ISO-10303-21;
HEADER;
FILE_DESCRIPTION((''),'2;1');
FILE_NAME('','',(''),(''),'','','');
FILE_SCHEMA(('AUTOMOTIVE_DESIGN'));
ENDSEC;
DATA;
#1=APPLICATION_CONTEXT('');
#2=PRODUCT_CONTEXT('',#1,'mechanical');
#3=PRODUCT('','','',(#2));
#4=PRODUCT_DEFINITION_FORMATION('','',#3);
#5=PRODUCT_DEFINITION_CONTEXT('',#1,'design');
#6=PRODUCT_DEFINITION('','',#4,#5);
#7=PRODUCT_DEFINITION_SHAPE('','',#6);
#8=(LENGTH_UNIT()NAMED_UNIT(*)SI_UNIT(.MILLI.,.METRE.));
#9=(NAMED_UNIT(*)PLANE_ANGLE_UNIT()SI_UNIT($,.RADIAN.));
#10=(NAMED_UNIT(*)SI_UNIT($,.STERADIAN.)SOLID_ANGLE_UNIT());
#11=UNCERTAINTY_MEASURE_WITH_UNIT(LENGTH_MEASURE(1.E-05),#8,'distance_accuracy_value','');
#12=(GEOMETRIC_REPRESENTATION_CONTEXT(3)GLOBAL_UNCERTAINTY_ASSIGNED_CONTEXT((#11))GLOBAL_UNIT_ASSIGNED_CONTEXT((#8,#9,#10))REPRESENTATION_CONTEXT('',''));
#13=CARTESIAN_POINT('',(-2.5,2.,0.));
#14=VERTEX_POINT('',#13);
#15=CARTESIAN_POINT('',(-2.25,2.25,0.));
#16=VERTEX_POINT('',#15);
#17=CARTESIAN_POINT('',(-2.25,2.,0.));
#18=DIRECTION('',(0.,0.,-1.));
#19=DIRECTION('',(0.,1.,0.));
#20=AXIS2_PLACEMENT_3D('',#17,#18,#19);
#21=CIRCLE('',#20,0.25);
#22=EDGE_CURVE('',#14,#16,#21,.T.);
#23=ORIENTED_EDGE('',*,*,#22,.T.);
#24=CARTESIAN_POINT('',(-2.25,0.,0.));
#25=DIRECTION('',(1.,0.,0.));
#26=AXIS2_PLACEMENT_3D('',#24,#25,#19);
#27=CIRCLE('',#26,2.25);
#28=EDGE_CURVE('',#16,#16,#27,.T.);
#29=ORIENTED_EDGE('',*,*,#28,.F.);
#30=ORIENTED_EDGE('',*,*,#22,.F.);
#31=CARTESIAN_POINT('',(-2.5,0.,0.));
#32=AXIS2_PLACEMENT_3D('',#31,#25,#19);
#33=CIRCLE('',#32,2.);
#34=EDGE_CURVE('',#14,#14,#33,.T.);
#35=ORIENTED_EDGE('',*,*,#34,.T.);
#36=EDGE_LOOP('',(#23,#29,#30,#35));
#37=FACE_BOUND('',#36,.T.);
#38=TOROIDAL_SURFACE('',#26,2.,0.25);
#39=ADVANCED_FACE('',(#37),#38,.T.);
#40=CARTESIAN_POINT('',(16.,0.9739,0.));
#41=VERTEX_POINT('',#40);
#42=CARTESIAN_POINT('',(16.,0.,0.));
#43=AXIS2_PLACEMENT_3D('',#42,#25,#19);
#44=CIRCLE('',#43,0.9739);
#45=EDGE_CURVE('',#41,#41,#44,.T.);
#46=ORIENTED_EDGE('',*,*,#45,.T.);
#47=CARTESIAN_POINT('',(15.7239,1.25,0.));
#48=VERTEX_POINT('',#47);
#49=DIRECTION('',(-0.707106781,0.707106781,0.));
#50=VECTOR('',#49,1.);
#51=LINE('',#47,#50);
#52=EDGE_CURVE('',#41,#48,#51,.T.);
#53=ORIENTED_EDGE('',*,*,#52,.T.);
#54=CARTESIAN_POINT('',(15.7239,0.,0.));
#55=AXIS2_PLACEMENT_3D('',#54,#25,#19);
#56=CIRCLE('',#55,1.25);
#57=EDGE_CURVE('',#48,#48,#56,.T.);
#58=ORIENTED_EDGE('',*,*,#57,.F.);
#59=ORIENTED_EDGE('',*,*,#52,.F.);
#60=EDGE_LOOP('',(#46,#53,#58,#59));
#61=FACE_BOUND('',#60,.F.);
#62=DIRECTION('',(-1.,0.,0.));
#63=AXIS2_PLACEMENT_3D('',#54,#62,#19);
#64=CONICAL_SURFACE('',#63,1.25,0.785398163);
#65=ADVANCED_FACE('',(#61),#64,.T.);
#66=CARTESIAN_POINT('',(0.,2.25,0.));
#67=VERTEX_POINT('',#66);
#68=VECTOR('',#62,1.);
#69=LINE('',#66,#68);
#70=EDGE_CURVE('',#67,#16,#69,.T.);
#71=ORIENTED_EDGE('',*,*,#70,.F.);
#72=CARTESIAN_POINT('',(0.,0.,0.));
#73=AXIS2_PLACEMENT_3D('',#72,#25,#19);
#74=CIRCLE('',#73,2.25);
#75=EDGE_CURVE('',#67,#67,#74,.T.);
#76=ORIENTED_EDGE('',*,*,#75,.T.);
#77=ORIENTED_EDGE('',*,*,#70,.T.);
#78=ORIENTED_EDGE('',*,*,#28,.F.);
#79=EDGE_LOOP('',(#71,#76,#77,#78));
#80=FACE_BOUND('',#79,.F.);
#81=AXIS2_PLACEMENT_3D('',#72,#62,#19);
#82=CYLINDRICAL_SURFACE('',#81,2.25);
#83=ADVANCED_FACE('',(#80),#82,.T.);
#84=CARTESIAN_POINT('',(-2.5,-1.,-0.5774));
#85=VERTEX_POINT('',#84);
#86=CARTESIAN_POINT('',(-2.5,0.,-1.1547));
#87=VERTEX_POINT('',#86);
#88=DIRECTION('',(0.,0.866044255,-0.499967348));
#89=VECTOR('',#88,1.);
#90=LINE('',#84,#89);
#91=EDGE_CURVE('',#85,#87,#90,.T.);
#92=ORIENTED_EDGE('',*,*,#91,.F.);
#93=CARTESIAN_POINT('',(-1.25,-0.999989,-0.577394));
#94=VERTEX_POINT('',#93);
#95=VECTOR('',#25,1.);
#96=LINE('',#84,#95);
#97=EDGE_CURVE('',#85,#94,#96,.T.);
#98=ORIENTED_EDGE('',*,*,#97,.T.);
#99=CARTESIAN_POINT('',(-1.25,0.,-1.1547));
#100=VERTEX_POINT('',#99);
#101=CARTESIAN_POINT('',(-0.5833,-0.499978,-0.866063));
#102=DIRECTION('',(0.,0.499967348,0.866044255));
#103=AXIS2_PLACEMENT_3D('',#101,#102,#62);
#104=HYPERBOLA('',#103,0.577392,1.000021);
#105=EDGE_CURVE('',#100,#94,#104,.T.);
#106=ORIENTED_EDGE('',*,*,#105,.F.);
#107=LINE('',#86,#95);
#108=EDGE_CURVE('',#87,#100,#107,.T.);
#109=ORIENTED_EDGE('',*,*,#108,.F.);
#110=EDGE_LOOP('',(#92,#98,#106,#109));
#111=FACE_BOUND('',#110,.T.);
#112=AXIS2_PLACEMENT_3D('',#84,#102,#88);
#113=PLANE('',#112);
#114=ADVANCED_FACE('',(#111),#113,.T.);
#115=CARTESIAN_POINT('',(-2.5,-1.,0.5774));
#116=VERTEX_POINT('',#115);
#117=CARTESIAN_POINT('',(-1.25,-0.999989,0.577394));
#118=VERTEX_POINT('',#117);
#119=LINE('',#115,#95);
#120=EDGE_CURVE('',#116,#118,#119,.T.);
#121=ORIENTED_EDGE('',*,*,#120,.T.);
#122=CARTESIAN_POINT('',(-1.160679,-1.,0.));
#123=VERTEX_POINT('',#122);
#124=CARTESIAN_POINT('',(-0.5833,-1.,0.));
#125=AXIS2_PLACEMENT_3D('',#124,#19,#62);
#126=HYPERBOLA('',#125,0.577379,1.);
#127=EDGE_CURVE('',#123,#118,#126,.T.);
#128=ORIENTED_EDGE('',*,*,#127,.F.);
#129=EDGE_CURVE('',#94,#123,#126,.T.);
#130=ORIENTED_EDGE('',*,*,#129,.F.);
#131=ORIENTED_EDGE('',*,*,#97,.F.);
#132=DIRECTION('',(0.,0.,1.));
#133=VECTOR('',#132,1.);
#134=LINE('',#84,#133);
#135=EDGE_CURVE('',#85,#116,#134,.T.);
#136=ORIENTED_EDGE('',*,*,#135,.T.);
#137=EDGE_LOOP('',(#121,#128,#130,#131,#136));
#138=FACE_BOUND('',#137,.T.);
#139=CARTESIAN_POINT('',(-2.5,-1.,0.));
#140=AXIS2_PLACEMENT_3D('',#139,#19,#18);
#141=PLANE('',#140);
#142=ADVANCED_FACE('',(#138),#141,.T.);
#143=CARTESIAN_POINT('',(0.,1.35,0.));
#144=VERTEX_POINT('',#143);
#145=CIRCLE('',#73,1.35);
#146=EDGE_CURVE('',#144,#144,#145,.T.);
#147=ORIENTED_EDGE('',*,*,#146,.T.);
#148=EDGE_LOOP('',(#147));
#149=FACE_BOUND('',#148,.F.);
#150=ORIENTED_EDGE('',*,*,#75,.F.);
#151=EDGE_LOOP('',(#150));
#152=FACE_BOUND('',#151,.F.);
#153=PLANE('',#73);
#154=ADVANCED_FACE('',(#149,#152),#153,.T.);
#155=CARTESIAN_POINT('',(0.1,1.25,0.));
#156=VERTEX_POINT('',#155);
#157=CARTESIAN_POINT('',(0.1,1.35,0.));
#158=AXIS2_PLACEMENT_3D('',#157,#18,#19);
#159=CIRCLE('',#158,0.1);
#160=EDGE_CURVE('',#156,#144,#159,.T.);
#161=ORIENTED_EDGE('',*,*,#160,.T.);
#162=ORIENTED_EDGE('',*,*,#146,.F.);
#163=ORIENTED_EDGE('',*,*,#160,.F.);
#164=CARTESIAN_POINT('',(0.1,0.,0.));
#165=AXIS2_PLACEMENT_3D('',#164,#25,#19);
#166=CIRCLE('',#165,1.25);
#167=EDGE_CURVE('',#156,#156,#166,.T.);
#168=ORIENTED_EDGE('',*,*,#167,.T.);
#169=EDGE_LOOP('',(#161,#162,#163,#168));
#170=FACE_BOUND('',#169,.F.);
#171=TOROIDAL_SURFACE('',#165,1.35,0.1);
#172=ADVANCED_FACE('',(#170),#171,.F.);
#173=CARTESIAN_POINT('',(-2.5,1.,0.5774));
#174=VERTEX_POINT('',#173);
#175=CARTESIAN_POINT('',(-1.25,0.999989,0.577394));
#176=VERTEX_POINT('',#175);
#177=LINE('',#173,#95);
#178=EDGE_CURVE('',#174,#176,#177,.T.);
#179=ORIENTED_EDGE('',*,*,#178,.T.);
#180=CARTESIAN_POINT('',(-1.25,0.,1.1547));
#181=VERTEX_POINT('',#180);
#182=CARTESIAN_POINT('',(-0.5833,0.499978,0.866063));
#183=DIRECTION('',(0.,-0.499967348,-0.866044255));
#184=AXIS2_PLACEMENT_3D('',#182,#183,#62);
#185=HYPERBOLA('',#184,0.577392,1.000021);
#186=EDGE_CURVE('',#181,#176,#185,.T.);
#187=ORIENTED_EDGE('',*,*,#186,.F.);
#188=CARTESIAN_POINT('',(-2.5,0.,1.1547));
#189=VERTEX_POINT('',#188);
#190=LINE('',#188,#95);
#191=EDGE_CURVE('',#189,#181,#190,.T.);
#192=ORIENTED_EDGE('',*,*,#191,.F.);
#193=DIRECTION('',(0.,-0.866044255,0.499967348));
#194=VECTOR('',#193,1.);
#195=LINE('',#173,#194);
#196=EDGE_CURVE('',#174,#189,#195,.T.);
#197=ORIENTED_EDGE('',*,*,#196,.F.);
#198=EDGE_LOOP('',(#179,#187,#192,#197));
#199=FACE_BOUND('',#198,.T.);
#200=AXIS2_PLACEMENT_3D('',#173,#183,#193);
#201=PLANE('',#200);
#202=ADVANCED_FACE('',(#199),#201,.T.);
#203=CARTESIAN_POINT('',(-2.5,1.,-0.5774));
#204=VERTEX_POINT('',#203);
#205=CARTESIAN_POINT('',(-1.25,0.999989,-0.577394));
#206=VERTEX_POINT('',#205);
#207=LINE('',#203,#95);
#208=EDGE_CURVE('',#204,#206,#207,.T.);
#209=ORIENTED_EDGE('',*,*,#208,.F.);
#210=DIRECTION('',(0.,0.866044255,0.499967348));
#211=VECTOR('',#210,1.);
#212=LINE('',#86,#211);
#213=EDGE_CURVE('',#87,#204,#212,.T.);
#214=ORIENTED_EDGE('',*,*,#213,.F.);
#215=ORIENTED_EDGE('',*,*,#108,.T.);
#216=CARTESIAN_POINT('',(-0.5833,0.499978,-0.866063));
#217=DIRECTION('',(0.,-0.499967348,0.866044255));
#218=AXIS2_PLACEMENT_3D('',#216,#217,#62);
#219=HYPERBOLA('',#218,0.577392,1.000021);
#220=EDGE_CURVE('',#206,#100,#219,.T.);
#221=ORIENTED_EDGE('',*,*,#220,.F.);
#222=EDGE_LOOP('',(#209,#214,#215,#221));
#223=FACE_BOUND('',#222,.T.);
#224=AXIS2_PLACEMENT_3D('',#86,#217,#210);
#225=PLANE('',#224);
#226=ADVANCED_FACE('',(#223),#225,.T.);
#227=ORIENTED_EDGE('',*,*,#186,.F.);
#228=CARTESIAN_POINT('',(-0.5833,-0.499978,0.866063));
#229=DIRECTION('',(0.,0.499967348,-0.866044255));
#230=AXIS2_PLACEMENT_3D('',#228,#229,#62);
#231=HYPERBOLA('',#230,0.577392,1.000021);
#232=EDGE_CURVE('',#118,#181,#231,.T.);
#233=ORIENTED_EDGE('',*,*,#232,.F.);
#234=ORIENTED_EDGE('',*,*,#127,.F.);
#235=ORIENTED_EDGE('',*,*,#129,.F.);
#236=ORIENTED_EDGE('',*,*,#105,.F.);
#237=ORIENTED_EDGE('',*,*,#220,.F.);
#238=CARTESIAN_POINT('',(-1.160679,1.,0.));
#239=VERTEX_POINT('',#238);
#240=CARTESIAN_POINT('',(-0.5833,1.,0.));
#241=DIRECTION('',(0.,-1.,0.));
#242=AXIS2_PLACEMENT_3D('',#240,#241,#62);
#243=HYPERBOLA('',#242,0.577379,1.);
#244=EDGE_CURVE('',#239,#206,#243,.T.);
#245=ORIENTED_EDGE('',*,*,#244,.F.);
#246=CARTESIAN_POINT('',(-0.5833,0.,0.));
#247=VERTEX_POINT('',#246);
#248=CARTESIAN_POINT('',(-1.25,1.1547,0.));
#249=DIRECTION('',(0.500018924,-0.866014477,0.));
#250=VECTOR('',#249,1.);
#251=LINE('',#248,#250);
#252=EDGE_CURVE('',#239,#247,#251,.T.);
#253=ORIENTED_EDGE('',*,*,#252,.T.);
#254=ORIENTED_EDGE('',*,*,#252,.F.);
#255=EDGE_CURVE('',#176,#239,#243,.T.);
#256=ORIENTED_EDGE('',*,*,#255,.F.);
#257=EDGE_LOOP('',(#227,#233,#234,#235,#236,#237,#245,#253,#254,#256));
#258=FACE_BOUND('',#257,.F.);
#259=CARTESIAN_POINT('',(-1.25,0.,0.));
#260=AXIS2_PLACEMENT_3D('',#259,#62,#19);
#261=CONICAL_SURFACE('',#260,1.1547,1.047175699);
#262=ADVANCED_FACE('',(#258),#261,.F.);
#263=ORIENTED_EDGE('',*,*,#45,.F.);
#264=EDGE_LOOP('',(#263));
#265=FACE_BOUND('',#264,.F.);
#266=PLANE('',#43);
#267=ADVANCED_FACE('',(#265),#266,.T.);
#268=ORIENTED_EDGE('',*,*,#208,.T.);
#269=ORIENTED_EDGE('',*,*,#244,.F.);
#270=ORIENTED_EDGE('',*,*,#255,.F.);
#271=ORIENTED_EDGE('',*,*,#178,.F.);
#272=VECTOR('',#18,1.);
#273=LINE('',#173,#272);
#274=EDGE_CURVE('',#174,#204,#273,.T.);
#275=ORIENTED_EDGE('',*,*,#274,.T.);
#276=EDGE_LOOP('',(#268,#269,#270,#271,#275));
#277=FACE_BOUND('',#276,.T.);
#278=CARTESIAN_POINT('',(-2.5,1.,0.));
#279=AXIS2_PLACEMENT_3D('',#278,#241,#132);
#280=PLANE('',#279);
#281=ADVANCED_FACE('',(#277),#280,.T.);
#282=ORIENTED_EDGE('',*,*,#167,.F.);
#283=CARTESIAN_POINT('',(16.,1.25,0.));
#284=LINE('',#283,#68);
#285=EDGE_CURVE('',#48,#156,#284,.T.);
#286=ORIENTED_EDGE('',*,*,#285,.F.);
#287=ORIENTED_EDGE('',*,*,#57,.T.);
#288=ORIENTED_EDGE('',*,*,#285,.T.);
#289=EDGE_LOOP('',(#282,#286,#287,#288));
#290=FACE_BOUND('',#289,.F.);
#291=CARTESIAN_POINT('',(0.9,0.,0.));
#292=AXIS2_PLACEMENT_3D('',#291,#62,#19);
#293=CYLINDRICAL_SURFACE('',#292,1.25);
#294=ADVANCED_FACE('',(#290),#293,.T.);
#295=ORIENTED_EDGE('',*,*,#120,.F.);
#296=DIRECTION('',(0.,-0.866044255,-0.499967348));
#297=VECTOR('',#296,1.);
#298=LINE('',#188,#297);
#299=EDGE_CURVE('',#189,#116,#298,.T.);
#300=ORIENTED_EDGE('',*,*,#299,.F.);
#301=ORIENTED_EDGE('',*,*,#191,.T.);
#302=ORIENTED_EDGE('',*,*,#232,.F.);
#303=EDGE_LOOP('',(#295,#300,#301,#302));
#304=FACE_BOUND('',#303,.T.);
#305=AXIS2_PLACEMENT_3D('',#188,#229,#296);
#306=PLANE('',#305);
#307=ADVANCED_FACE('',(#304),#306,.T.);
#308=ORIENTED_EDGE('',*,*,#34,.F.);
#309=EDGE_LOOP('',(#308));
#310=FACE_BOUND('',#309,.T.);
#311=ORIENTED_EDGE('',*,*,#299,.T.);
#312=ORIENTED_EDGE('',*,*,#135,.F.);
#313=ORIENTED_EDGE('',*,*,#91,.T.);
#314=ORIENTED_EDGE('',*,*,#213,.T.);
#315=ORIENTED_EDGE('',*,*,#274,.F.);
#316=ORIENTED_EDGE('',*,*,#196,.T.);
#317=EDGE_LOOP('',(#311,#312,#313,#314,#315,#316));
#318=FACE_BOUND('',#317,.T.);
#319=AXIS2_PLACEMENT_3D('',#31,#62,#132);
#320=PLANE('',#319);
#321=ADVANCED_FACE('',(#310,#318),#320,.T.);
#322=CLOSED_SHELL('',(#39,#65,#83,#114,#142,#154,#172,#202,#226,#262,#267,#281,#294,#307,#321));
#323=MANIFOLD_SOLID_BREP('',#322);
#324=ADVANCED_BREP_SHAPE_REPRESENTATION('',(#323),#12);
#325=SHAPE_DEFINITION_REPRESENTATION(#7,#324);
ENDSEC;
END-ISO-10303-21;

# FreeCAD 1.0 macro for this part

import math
import FreeCAD as App
import Part
import Sketcher

V = App.Vector
Q = App.Units.Quantity


def edges_at(feature, points):
    """Names of the edges that pass closest to the given points."""
    edges = feature.Shape.Edges
    near = lambda p: min(range(len(edges)), key=lambda i: edges[i].distToShape(Part.Vertex(*p))[0])
    return sorted({f"Edge{near(p) + 1}" for p in points})

doc = App.newDocument("Part")
body = doc.addObject("PartDesign::Body", "Body")

sketch1 = body.newObject("Sketcher::SketchObject", "Sketch")
sketch1.AttachmentSupport = (doc.getObject("XY_Plane"), [""])
sketch1.MapMode = "FlatFace"
sketch1.addGeometry(Part.LineSegment(V(-1.2, 1.2, 0), V(-0.6, 0, 0)), False)
sketch1.addGeometry(Part.LineSegment(V(-0.6, 0, 0), V(16, 0, 0)), False)
sketch1.addGeometry(Part.LineSegment(V(16, 0, 0), V(16, 1.2, 0)), False)
sketch1.addGeometry(Part.LineSegment(V(16, 1.2, 0), V(0, 1.2, 0)), False)
sketch1.addGeometry(Part.LineSegment(V(0, 1.2, 0), V(0, 2.2, 0)), False)
sketch1.addGeometry(Part.LineSegment(V(0, 2.2, 0), V(-2.5, 2.2, 0)), False)
sketch1.addGeometry(Part.LineSegment(V(-2.5, 2.2, 0), V(-2.5, 1.2, 0)), False)
sketch1.addGeometry(Part.LineSegment(V(-2.5, 1.2, 0), V(-1.2, 1.2, 0)), False)
sketch1.addConstraint(Sketcher.Constraint("Coincident", 0, 2, 1, 1))
sketch1.addConstraint(Sketcher.Constraint("Coincident", 1, 2, 2, 1))
sketch1.addConstraint(Sketcher.Constraint("Coincident", 2, 2, 3, 1))
sketch1.addConstraint(Sketcher.Constraint("Coincident", 3, 2, 4, 1))
sketch1.addConstraint(Sketcher.Constraint("Coincident", 4, 2, 5, 1))
sketch1.addConstraint(Sketcher.Constraint("Coincident", 5, 2, 6, 1))
sketch1.addConstraint(Sketcher.Constraint("Coincident", 6, 2, 7, 1))
sketch1.addConstraint(Sketcher.Constraint("Coincident", 7, 2, 0, 1))
sketch1.addConstraint(Sketcher.Constraint("Horizontal", 1))
sketch1.addConstraint(Sketcher.Constraint("Vertical", 2))
sketch1.addConstraint(Sketcher.Constraint("Horizontal", 3))
sketch1.addConstraint(Sketcher.Constraint("Vertical", 4))
sketch1.addConstraint(Sketcher.Constraint("Horizontal", 5))
sketch1.addConstraint(Sketcher.Constraint("Vertical", 6))
sketch1.addConstraint(Sketcher.Constraint("Horizontal", 7))
sketch1.addConstraint(Sketcher.Constraint("PointOnObject", 0, 2, -1))
sketch1.addConstraint(Sketcher.Constraint("PointOnObject", 3, 2, -2))
sketch1.addConstraint(Sketcher.Constraint("Equal", 7, 2))
sketch1.addConstraint(Sketcher.Constraint("DistanceX", 3, 2, 3, 1, Q("16 mm")))
sketch1.addConstraint(Sketcher.Constraint("DistanceX", 5, 2, 5, 1, Q("2.5 mm")))
sketch1.addConstraint(Sketcher.Constraint("DistanceX", 7, 1, 7, 2, Q("1.25 mm")))
sketch1.addConstraint(Sketcher.Constraint("DistanceY", 4, 1, 4, 2, Q("1 mm")))
sketch1.addConstraint(Sketcher.Constraint("DistanceX", 1, 1, 1, 2, Q("16.5833 mm")))
sketch1.addConstraint(Sketcher.Constraint("DistanceY", 6, 2, 6, 1, Q("1.0953 mm")))
revolution = body.newObject("PartDesign::Revolution", "Revolution")
revolution.Profile = sketch1
revolution.ReferenceAxis = (sketch1, ["H_Axis"])
revolution.Angle = 360

sketch2 = body.newObject("Sketcher::SketchObject", "Sketch001")
sketch2.AttachmentSupport = (doc.getObject("YZ_Plane"), [""])
sketch2.MapMode = "FlatFace"
sketch2.AttachmentOffset = App.Placement(V(0, 0, -2.5), App.Rotation())
sketch2.addGeometry(Part.LineSegment(V(1, 0.6, 0), V(0, 1.2, 0)), False)
sketch2.addGeometry(Part.ArcOfCircle(Part.Circle(V(0, 0, 0), V(0, 0, 1), 1.2), math.radians(30), math.radians(90)), False)
sketch2.addGeometry(Part.ArcOfCircle(Part.Circle(V(0, 0, 0), V(0, 0, 1), 1.2), math.radians(90), math.radians(150)), False)
sketch2.addGeometry(Part.LineSegment(V(0, 1.2, 0), V(-1, 0.6, 0)), False)
sketch2.addGeometry(Part.ArcOfCircle(Part.Circle(V(0, 0, 0), V(0, 0, 1), 1.2), math.radians(-30), math.radians(30)), False)
sketch2.addGeometry(Part.LineSegment(V(1, 0.6, 0), V(1, -0.6, 0)), False)
sketch2.addGeometry(Part.LineSegment(V(-1, 0.6, 0), V(-1, -0.6, 0)), False)
sketch2.addGeometry(Part.ArcOfCircle(Part.Circle(V(0, 0, 0), V(0, 0, 1), 1.2), math.radians(150), math.radians(210)), False)
sketch2.addGeometry(Part.LineSegment(V(-1, -0.6, 0), V(0, -1.2, 0)), False)
sketch2.addGeometry(Part.ArcOfCircle(Part.Circle(V(0, 0, 0), V(0, 0, 1), 1.2), math.radians(-150), math.radians(-90)), False)
sketch2.addGeometry(Part.ArcOfCircle(Part.Circle(V(0, 0, 0), V(0, 0, 1), 1.2), math.radians(-90), math.radians(-30)), False)
sketch2.addGeometry(Part.LineSegment(V(0, -1.2, 0), V(1, -0.6, 0)), False)
sketch2.addConstraint(Sketcher.Constraint("Coincident", 0, 1, 1, 1))
sketch2.addConstraint(Sketcher.Constraint("Coincident", 1, 2, 0, 2))
sketch2.addConstraint(Sketcher.Constraint("Coincident", 2, 1, 3, 1))
sketch2.addConstraint(Sketcher.Constraint("Coincident", 3, 2, 2, 2))
sketch2.addConstraint(Sketcher.Constraint("Coincident", 4, 1, 5, 2))
sketch2.addConstraint(Sketcher.Constraint("Coincident", 5, 1, 4, 2))
sketch2.addConstraint(Sketcher.Constraint("Coincident", 6, 1, 7, 1))
sketch2.addConstraint(Sketcher.Constraint("Coincident", 7, 2, 6, 2))
sketch2.addConstraint(Sketcher.Constraint("Coincident", 8, 1, 9, 1))
sketch2.addConstraint(Sketcher.Constraint("Coincident", 9, 2, 8, 2))
sketch2.addConstraint(Sketcher.Constraint("Coincident", 10, 1, 11, 1))
sketch2.addConstraint(Sketcher.Constraint("Coincident", 11, 2, 10, 2))
sketch2.addConstraint(Sketcher.Constraint("Vertical", 5))
sketch2.addConstraint(Sketcher.Constraint("Vertical", 6))
sketch2.addConstraint(Sketcher.Constraint("Coincident", 1, 3, -1, 1))
sketch2.addConstraint(Sketcher.Constraint("Coincident", 2, 3, -1, 1))
sketch2.addConstraint(Sketcher.Constraint("Coincident", 4, 3, -1, 1))
sketch2.addConstraint(Sketcher.Constraint("Coincident", 7, 3, -1, 1))
sketch2.addConstraint(Sketcher.Constraint("Coincident", 9, 3, -1, 1))
sketch2.addConstraint(Sketcher.Constraint("Coincident", 10, 3, -1, 1))
sketch2.addConstraint(Sketcher.Constraint("Coincident", 2, 1, 1, 2))
sketch2.addConstraint(Sketcher.Constraint("Coincident", 5, 1, 0, 1))
sketch2.addConstraint(Sketcher.Constraint("Coincident", 6, 1, 3, 2))
sketch2.addConstraint(Sketcher.Constraint("Coincident", 8, 1, 7, 2))
sketch2.addConstraint(Sketcher.Constraint("Coincident", 10, 1, 9, 2))
sketch2.addConstraint(Sketcher.Constraint("PointOnObject", 1, 2, -2))
sketch2.addConstraint(Sketcher.Constraint("PointOnObject", 9, 2, -2))
sketch2.addConstraint(Sketcher.Constraint("Parallel", 0, 8))
sketch2.addConstraint(Sketcher.Constraint("Parallel", 3, 11))
sketch2.addConstraint(Sketcher.Constraint("DistanceX", -1, 1, 0, 1, Q("1 mm")))
sketch2.addConstraint(Sketcher.Constraint("Radius", 1, Q("1.1547 mm")))
pad1 = body.newObject("PartDesign::Pad", "Pad")
pad1.Profile = sketch2
pad1.Type = "UpToFirst"
doc.recompute()

fillet = body.newObject("PartDesign::Fillet", "Fillet")
fillet.Base = (pad1, edges_at(pad1, [(-2.5, -2.25, 0)]))
fillet.Radius = 0.25
doc.recompute()

chamfer = body.newObject("PartDesign::Chamfer", "Chamfer")
chamfer.Base = (fillet, edges_at(fillet, [(16, -1.25, 0)]))
chamfer.ChamferType = "Two distances"
chamfer.Size = 0.2761
chamfer.Size2 = 0.2761
doc.recompute()

fillet2 = body.newObject("PartDesign::Fillet", "Fillet001")
fillet2.Base = (chamfer, edges_at(chamfer, [(0, -1.25, 0)]))
fillet2.Radius = 0.1

doc.recompute()
